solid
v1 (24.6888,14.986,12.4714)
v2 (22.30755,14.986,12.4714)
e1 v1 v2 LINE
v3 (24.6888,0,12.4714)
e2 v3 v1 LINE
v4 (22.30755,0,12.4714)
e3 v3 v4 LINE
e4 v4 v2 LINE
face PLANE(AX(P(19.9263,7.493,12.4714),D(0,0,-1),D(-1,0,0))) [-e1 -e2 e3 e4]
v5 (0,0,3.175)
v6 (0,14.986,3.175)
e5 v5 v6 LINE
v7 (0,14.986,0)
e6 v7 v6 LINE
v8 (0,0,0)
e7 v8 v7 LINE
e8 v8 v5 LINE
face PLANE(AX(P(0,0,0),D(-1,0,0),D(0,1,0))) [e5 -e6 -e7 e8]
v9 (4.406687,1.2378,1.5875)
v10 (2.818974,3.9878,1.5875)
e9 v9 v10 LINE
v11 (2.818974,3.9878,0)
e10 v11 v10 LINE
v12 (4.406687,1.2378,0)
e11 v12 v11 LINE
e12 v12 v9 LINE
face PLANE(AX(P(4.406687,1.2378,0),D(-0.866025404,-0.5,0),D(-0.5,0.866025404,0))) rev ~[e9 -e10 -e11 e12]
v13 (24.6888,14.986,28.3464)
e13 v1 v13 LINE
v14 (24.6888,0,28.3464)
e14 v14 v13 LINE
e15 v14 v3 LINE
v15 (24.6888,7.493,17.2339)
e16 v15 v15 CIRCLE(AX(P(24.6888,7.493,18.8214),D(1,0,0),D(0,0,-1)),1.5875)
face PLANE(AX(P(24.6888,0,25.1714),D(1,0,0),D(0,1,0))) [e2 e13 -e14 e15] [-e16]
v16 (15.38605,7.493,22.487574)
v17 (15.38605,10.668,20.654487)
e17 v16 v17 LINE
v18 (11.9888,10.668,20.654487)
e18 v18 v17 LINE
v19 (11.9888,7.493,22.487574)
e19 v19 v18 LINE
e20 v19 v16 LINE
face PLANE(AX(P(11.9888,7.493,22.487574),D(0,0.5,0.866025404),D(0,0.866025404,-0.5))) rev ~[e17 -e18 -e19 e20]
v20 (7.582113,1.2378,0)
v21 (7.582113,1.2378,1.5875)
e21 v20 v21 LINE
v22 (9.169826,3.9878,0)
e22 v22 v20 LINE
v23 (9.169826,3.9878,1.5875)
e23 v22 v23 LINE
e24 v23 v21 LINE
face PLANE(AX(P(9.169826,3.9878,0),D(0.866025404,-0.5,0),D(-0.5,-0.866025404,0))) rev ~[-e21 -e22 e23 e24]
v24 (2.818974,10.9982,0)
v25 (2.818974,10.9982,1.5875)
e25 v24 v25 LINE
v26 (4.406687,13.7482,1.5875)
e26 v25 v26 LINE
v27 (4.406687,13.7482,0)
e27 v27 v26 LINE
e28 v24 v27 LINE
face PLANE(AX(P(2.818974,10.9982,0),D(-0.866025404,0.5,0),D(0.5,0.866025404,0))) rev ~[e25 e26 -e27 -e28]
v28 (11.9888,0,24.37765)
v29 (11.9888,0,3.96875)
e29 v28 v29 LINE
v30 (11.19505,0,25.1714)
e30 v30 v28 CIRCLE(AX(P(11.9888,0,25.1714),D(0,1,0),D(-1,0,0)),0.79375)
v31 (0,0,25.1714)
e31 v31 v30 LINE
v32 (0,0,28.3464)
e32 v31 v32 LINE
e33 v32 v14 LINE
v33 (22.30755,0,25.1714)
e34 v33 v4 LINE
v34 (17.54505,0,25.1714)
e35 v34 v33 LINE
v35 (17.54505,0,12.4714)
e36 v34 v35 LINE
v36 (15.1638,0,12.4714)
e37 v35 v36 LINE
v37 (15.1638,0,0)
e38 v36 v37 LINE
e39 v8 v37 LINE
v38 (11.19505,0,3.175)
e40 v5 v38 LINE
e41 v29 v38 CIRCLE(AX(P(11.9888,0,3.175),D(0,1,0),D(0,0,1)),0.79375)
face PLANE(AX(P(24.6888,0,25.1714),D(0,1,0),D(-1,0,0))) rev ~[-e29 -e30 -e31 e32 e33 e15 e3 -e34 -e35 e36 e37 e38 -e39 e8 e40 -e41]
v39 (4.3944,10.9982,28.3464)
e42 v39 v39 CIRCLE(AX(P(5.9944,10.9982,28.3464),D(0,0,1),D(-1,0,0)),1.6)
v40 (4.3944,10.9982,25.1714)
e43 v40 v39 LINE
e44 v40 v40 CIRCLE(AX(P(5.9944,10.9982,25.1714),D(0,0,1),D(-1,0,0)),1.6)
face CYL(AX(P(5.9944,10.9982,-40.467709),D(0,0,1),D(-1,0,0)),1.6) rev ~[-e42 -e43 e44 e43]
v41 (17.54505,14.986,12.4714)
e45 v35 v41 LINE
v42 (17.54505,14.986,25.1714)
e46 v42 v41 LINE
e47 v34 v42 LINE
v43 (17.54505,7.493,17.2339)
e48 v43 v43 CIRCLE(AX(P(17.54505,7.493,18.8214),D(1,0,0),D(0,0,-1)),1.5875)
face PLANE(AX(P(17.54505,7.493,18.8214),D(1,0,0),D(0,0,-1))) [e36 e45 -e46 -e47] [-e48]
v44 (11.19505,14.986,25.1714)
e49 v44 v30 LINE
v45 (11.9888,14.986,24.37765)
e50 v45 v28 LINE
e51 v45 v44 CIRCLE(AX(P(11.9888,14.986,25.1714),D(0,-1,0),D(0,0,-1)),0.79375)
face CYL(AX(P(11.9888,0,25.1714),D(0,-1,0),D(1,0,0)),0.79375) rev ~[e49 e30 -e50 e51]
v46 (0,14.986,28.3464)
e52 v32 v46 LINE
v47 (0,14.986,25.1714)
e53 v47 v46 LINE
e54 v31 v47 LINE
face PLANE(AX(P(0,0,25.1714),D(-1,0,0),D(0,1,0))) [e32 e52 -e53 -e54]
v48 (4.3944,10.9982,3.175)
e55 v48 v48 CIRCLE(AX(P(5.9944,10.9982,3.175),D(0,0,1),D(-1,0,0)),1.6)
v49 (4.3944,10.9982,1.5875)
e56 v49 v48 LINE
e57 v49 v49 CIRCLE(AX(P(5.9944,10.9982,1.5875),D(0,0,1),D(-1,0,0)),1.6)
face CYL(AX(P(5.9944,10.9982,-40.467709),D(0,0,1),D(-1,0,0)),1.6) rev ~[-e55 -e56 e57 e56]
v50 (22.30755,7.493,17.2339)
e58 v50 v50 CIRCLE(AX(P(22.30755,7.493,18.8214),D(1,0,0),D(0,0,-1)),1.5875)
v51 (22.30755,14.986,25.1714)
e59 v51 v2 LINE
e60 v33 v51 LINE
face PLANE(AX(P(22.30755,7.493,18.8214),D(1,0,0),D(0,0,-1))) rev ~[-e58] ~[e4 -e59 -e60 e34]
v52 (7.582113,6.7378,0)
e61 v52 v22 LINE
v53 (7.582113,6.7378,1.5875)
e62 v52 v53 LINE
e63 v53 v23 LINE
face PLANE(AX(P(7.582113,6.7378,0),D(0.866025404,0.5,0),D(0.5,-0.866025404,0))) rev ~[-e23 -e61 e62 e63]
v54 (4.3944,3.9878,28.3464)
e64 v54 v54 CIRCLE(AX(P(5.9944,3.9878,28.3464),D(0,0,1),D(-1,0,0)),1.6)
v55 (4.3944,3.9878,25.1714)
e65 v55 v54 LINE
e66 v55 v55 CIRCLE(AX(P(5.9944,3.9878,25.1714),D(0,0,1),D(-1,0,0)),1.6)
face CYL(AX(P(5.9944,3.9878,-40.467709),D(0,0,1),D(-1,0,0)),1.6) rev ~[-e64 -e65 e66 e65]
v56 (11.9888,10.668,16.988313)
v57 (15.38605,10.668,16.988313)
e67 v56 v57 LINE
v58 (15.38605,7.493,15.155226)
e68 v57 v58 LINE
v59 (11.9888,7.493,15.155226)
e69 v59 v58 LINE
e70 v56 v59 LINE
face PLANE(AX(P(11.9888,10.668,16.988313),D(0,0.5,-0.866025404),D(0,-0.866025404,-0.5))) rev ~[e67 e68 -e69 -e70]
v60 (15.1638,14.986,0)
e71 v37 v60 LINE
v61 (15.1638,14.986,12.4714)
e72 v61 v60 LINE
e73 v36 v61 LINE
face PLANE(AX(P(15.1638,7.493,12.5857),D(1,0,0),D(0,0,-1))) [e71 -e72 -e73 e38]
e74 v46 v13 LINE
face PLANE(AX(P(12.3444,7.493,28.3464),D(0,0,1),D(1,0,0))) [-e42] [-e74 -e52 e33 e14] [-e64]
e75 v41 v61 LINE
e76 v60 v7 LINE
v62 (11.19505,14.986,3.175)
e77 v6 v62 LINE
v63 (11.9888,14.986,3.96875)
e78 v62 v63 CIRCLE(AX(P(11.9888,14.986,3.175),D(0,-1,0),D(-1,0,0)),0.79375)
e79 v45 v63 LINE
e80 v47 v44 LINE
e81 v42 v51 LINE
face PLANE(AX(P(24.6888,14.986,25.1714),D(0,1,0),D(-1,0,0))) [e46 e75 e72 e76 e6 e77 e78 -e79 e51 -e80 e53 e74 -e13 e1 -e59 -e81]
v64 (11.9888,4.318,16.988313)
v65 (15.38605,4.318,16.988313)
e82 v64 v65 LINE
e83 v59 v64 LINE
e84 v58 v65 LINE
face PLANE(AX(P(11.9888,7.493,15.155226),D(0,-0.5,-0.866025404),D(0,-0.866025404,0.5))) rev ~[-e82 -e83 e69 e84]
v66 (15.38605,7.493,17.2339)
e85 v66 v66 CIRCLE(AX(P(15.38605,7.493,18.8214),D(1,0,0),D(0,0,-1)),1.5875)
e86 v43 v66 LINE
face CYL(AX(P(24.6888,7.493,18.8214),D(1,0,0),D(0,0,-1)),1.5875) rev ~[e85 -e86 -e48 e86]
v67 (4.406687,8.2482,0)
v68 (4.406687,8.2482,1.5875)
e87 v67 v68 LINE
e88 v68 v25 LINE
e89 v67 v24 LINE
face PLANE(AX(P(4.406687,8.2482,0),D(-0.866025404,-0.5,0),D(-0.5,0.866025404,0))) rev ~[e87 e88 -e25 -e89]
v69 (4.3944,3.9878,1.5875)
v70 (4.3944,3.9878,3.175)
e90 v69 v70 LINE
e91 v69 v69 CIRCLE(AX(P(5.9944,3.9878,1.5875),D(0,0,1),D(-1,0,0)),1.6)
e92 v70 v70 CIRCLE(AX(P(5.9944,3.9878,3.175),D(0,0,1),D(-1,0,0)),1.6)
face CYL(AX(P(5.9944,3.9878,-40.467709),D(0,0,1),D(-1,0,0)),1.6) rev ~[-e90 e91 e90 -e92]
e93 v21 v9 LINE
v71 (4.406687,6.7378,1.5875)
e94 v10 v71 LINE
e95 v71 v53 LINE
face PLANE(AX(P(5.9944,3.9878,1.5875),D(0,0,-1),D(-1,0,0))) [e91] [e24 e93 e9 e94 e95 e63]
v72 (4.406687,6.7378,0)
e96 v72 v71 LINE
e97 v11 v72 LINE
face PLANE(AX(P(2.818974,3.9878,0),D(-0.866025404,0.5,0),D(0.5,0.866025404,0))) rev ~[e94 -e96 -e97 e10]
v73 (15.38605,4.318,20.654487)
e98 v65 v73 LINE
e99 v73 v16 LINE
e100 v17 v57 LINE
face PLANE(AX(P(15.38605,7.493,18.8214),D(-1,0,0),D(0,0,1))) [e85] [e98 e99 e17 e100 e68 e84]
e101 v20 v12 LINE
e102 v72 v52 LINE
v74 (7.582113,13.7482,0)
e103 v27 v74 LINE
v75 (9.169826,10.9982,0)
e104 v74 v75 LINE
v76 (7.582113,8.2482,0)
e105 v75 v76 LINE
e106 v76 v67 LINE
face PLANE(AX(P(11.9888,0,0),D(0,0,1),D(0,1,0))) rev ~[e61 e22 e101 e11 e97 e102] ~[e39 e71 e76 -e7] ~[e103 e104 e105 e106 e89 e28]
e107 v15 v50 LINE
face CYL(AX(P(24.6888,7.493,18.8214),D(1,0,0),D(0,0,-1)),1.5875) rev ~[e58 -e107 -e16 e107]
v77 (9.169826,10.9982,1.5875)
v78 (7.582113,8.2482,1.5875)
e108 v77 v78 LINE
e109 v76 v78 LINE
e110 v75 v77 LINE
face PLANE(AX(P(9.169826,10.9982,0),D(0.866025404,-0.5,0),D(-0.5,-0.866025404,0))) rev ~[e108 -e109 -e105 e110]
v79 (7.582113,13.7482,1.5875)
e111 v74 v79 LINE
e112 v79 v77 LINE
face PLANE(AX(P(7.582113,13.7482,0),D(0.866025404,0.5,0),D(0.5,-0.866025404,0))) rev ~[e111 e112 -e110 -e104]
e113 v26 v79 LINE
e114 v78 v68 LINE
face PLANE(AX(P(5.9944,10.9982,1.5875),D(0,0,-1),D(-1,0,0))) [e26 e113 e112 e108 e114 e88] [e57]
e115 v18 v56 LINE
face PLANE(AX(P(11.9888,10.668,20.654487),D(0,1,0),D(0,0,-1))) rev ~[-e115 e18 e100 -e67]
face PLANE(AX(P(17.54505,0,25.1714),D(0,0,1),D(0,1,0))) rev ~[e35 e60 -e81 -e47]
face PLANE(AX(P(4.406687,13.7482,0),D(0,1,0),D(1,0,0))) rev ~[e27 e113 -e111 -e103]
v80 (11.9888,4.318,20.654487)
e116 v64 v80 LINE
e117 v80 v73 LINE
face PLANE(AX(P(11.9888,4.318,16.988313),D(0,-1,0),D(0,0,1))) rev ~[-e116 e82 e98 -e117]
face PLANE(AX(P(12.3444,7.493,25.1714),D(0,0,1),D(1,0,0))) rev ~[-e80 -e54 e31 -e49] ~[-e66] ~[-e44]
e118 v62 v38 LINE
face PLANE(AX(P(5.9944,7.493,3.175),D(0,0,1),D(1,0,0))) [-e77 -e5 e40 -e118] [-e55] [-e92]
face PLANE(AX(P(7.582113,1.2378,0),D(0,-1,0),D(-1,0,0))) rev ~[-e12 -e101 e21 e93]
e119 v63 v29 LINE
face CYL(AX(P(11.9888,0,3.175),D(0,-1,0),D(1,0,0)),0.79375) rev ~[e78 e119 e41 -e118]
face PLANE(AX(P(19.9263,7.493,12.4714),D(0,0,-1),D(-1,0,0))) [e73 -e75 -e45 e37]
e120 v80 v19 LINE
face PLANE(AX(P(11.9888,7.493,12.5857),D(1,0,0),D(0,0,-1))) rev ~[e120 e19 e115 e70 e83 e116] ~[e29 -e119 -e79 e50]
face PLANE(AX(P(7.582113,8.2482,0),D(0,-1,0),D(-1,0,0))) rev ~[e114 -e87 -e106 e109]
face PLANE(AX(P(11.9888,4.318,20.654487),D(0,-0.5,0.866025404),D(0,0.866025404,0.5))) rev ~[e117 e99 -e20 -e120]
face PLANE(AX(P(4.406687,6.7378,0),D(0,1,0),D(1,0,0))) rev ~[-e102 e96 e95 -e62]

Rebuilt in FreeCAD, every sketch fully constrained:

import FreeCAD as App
import Part
import Sketcher

V = App.Vector
Q = App.Units.Quantity

doc = App.newDocument("Part")
body = doc.addObject("PartDesign::Body", "Body")

sketch1 = body.newObject("Sketcher::SketchObject", "Sketch")
sketch1.AttachmentSupport = (doc.getObject("XY_Plane"), [""])
sketch1.MapMode = "FlatFace"
sketch1.addGeometry([
    Part.LineSegment(V(0, 14.986, 0), V(0, 0, 0)),
    Part.LineSegment(V(0, 0, 0), V(11.9888, 0, 0)),
    Part.LineSegment(V(11.9888, 0, 0), V(11.9888, 14.986, 0)),
    Part.LineSegment(V(11.9888, 14.986, 0), V(0, 14.986, 0)),
], False)
sketch1.addConstraint([
    Sketcher.Constraint("Coincident", 0, 2, 1, 1),
    Sketcher.Constraint("Coincident", 1, 2, 2, 1),
    Sketcher.Constraint("Coincident", 2, 2, 3, 1),
    Sketcher.Constraint("Coincident", 3, 2, 0, 1),
    Sketcher.Constraint("Vertical", 0),
    Sketcher.Constraint("Horizontal", 1),
    Sketcher.Constraint("Vertical", 2),
    Sketcher.Constraint("Horizontal", 3),
    Sketcher.Constraint("Coincident", 0, 2, -1, 1),
    Sketcher.Constraint("DistanceY", 0, 2, 0, 1, Q("0.59 in")),
    Sketcher.Constraint("DistanceX", 1, 1, 1, 2, Q("0.472 in")),
])
pad1 = body.newObject("PartDesign::Pad", "Pad")
pad1.Profile = sketch1
pad1.Length = Q("0.125 in")

sketch2 = body.newObject("Sketcher::SketchObject", "Sketch001")
sketch2.AttachmentSupport = (doc.getObject("YZ_Plane"), [""])
sketch2.MapMode = "FlatFace"
sketch2.AttachmentOffset = App.Placement(V(0, 0, 0.472 * 25.4), App.Rotation())
sketch2.addGeometry([
    Part.LineSegment(V(14.986, 25.1714, 0), V(0, 25.1714, 0)),
    Part.LineSegment(V(0, 25.1714, 0), V(0, 0, 0)),
    Part.LineSegment(V(0, 0, 0), V(14.986, 0, 0)),
    Part.LineSegment(V(14.986, 0, 0), V(14.986, 25.1714, 0)),
], False)
sketch2.addConstraint([
    Sketcher.Constraint("Coincident", 0, 2, 1, 1),
    Sketcher.Constraint("Coincident", 1, 2, 2, 1),
    Sketcher.Constraint("Coincident", 2, 2, 3, 1),
    Sketcher.Constraint("Coincident", 3, 2, 0, 1),
    Sketcher.Constraint("Horizontal", 0),
    Sketcher.Constraint("Vertical", 1),
    Sketcher.Constraint("Horizontal", 2),
    Sketcher.Constraint("Vertical", 3),
    Sketcher.Constraint("Coincident", 1, 2, -1, 1),
    Sketcher.Constraint("DistanceX", 0, 2, 0, 1, Q("0.59 in")),
    Sketcher.Constraint("DistanceY", 1, 2, 1, 1, Q("0.991 in")),
])
pad2 = body.newObject("PartDesign::Pad", "Pad001")
pad2.Profile = sketch2
pad2.Length = Q("0.125 in")

sketch3 = body.newObject("Sketcher::SketchObject", "Sketch002")
sketch3.AttachmentSupport = (doc.getObject("XY_Plane"), [""])
sketch3.MapMode = "FlatFace"
sketch3.AttachmentOffset = App.Placement(V(0, 0, 0.991 * 25.4), App.Rotation())
sketch3.addGeometry([
    Part.LineSegment(V(0, 14.986, 0), V(0, 0, 0)),
    Part.LineSegment(V(0, 0, 0), V(24.6888, 0, 0)),
    Part.LineSegment(V(24.6888, 0, 0), V(24.6888, 14.986, 0)),
    Part.LineSegment(V(24.6888, 14.986, 0), V(0, 14.986, 0)),
], False)
sketch3.addConstraint([
    Sketcher.Constraint("Coincident", 0, 2, 1, 1),
    Sketcher.Constraint("Coincident", 1, 2, 2, 1),
    Sketcher.Constraint("Coincident", 2, 2, 3, 1),
    Sketcher.Constraint("Coincident", 3, 2, 0, 1),
    Sketcher.Constraint("Vertical", 0),
    Sketcher.Constraint("Horizontal", 1),
    Sketcher.Constraint("Vertical", 2),
    Sketcher.Constraint("Horizontal", 3),
    Sketcher.Constraint("Coincident", 0, 2, -1, 1),
    Sketcher.Constraint("DistanceY", 0, 2, 0, 1, Q("0.59 in")),
    Sketcher.Constraint("DistanceX", 1, 1, 1, 2, Q("0.972 in")),
])
pad3 = body.newObject("PartDesign::Pad", "Pad002")
pad3.Profile = sketch3
pad3.Length = Q("0.125 in")

sketch4 = body.newObject("Sketcher::SketchObject", "Sketch003")
sketch4.AttachmentSupport = (doc.getObject("XY_Plane"), [""])
sketch4.MapMode = "FlatFace"
sketch4.addGeometry([
    Part.Circle(V(5.9944, 10.9982, 0), V(0, 0, 1), 1.6),
    Part.Circle(V(5.9944, 3.9878, 0), V(0, 0, 1), 1.6),
], False)
sketch4.addConstraint([
    Sketcher.Constraint("Equal", 0, 1),
    Sketcher.Constraint("Vertical", 0, 3, 1, 3),
    Sketcher.Constraint("Diameter", 0, Q("3.2 mm")),
    Sketcher.Constraint("DistanceX", -1, 1, 0, 3, Q("0.236 in")),
    Sketcher.Constraint("DistanceY", -1, 1, 0, 3, Q("0.433 in")),
    Sketcher.Constraint("DistanceY", -1, 1, 1, 3, Q("0.157 in")),
])
doc.recompute()
hole = body.newObject("PartDesign::Hole", "Hole")
hole.Profile = sketch4
hole.ThreadType = "None"
hole.Diameter = 3.2
hole.DepthType = "ThroughAll"
hole.Reversed = True

sketch5 = body.newObject("Sketcher::SketchObject", "Sketch004")
sketch5.AttachmentSupport = (doc.getObject("XZ_Plane"), [""])
sketch5.MapMode = "FlatFace"
sketch5.addGeometry([
    Part.Circle(V(11.9888, 25.1714, 0), V(0, 0, 1), 0.79375),
    Part.Circle(V(11.9888, 3.175, 0), V(0, 0, 1), 0.79375),
], False)
sketch5.addConstraint([
    Sketcher.Constraint("Equal", 0, 1),
    Sketcher.Constraint("Vertical", 0, 3, 1, 3),
    Sketcher.Constraint("Diameter", 0, Q("0.0625 in")),
    Sketcher.Constraint("DistanceX", -1, 1, 0, 3, Q("0.472 in")),
    Sketcher.Constraint("DistanceY", -1, 1, 0, 3, Q("0.991 in")),
    Sketcher.Constraint("DistanceY", -1, 1, 1, 3, Q("0.125 in")),
])
pocket1 = body.newObject("PartDesign::Pocket", "Pocket")
pocket1.Profile = sketch5
pocket1.Type = "ThroughAll"

sketch6 = body.newObject("Sketcher::SketchObject", "Sketch005")
sketch6.AttachmentSupport = (doc.getObject("XY_Plane"), [""])
sketch6.MapMode = "FlatFace"
sketch6.addGeometry([
    Part.LineSegment(V(4.406687, 6.7378, 0), V(7.582113, 6.7378, 0)),
    Part.LineSegment(V(7.582113, 6.7378, 0), V(9.169826, 3.9878, 0)),
    Part.LineSegment(V(9.169826, 3.9878, 0), V(7.582113, 1.2378, 0)),
    Part.LineSegment(V(7.582113, 1.2378, 0), V(4.406687, 1.2378, 0)),
    Part.LineSegment(V(4.406687, 1.2378, 0), V(2.818974, 3.9878, 0)),
    Part.LineSegment(V(2.818974, 3.9878, 0), V(4.406687, 6.7378, 0)),
    Part.LineSegment(V(4.406687, 13.7482, 0), V(7.582113, 13.7482, 0)),
    Part.LineSegment(V(7.582113, 13.7482, 0), V(9.169826, 10.9982, 0)),
    Part.LineSegment(V(9.169826, 10.9982, 0), V(7.582113, 8.2482, 0)),
    Part.LineSegment(V(7.582113, 8.2482, 0), V(4.406687, 8.2482, 0)),
    Part.LineSegment(V(4.406687, 8.2482, 0), V(2.818974, 10.9982, 0)),
    Part.LineSegment(V(2.818974, 10.9982, 0), V(4.406687, 13.7482, 0)),
], False)
sketch6.addConstraint([
    Sketcher.Constraint("Coincident", 0, 2, 1, 1),
    Sketcher.Constraint("Coincident", 1, 2, 2, 1),
    Sketcher.Constraint("Coincident", 2, 2, 3, 1),
    Sketcher.Constraint("Coincident", 3, 2, 4, 1),
    Sketcher.Constraint("Coincident", 4, 2, 5, 1),
    Sketcher.Constraint("Coincident", 5, 2, 0, 1),
    Sketcher.Constraint("Coincident", 6, 2, 7, 1),
    Sketcher.Constraint("Coincident", 7, 2, 8, 1),
    Sketcher.Constraint("Coincident", 8, 2, 9, 1),
    Sketcher.Constraint("Coincident", 9, 2, 10, 1),
    Sketcher.Constraint("Coincident", 10, 2, 11, 1),
    Sketcher.Constraint("Coincident", 11, 2, 6, 1),
    Sketcher.Constraint("Horizontal", 0),
    Sketcher.Constraint("Horizontal", 3),
    Sketcher.Constraint("Horizontal", 6),
    Sketcher.Constraint("Horizontal", 9),
    Sketcher.Constraint("Parallel", 1, 4),
    Sketcher.Constraint("Parallel", 2, 5),
    Sketcher.Constraint("Parallel", 4, 7),
    Sketcher.Constraint("Parallel", 5, 8),
    Sketcher.Constraint("Parallel", 7, 10),
    Sketcher.Constraint("Parallel", 8, 11),
    Sketcher.Constraint("Horizontal", 1, 2, 4, 2),
    Sketcher.Constraint("Horizontal", 7, 2, 10, 2),
    Sketcher.Constraint("Vertical", 0, 2, 2, 2),
    Sketcher.Constraint("Vertical", 3, 2, 5, 2),
    Sketcher.Constraint("Vertical", 2, 2, 6, 2),
    Sketcher.Constraint("Vertical", 1, 2, 7, 2),
    Sketcher.Constraint("Vertical", 6, 2, 8, 2),
    Sketcher.Constraint("Vertical", 5, 2, 9, 2),
    Sketcher.Constraint("Angle", 1, Q("-60 deg")),
    Sketcher.Constraint("DistanceY", -1, 1, 1, 2, Q("0.157 in")),
    Sketcher.Constraint("DistanceY", -1, 1, 7, 2, Q("0.433 in")),
    Sketcher.Constraint("DistanceY", -1, 1, 0, 2, Q("6.7378 mm")),
    Sketcher.Constraint("DistanceX", 0, 1, 0, 2, Q("3.175426 mm")),
    Sketcher.Constraint("DistanceX", -1, 1, 0, 2, Q("7.582113 mm")),
])
pocket2 = body.newObject("PartDesign::Pocket", "Pocket001")
pocket2.Profile = sketch6
pocket2.Length = Q("0.0625 in")
pocket2.Reversed = True

sketch7 = body.newObject("Sketcher::SketchObject", "Sketch006")
sketch7.AttachmentSupport = (doc.getObject("XY_Plane"), [""])
sketch7.MapMode = "FlatFace"
sketch7.AttachmentOffset = App.Placement(V(0, 0, 0.991 * 25.4), App.Rotation())
sketch7.addGeometry([
    Part.LineSegment(V(24.6888, 14.986, 0), V(24.6888, 0, 0)),
    Part.LineSegment(V(24.6888, 0, 0), V(15.1638, 0, 0)),
    Part.LineSegment(V(15.1638, 0, 0), V(15.1638, 14.986, 0)),
    Part.LineSegment(V(15.1638, 14.986, 0), V(24.6888, 14.986, 0)),
], False)
sketch7.addConstraint([
    Sketcher.Constraint("Coincident", 0, 2, 1, 1),
    Sketcher.Constraint("Coincident", 1, 2, 2, 1),
    Sketcher.Constraint("Coincident", 2, 2, 3, 1),
    Sketcher.Constraint("Coincident", 3, 2, 0, 1),
    Sketcher.Constraint("Vertical", 0),
    Sketcher.Constraint("Horizontal", 1),
    Sketcher.Constraint("Vertical", 2),
    Sketcher.Constraint("Horizontal", 3),
    Sketcher.Constraint("PointOnObject", 0, 2, -1),
    Sketcher.Constraint("DistanceY", 0, 2, 0, 1, Q("0.59 in")),
    Sketcher.Constraint("DistanceX", 1, 2, 1, 1, Q("0.375 in")),
    Sketcher.Constraint("DistanceX", -1, 1, 0, 2, Q("0.972 in")),
])
pad4 = body.newObject("PartDesign::Pad", "Pad003")
pad4.Profile = sketch7
pad4.Length = Q("0.5 in")
pad4.Reversed = True

sketch8 = body.newObject("Sketcher::SketchObject", "Sketch007")
sketch8.AttachmentSupport = (doc.getObject("YZ_Plane"), [""])
sketch8.MapMode = "FlatFace"
sketch8.AttachmentOffset = App.Placement(V(0, 0, 0.7845 * 25.4), App.Rotation())
sketch8.addGeometry([
    Part.LineSegment(V(14.986, 25.1714, 0), V(0, 25.1714, 0)),
    Part.LineSegment(V(0, 25.1714, 0), V(0, 12.4714, 0)),
    Part.LineSegment(V(0, 12.4714, 0), V(14.986, 12.4714, 0)),
    Part.LineSegment(V(14.986, 12.4714, 0), V(14.986, 25.1714, 0)),
], False)
sketch8.addConstraint([
    Sketcher.Constraint("Coincident", 0, 2, 1, 1),
    Sketcher.Constraint("Coincident", 1, 2, 2, 1),
    Sketcher.Constraint("Coincident", 2, 2, 3, 1),
    Sketcher.Constraint("Coincident", 3, 2, 0, 1),
    Sketcher.Constraint("Horizontal", 0),
    Sketcher.Constraint("Vertical", 1),
    Sketcher.Constraint("Horizontal", 2),
    Sketcher.Constraint("Vertical", 3),
    Sketcher.Constraint("PointOnObject", 0, 2, -2),
    Sketcher.Constraint("DistanceY", 1, 2, 1, 1, Q("0.5 in")),
    Sketcher.Constraint("DistanceX", 0, 2, 0, 1, Q("0.59 in")),
    Sketcher.Constraint("DistanceY", -1, 1, 0, 2, Q("0.991 in")),
])
pocket3 = body.newObject("PartDesign::Pocket", "Pocket002")
pocket3.Profile = sketch8
pocket3.Type = "TwoLengths"
pocket3.Length = Q("0.09375 in")
pocket3.Length2 = Q("0.09375 in")
pocket3.Reversed = True

sketch9 = body.newObject("Sketcher::SketchObject", "Sketch008")
sketch9.AttachmentSupport = (doc.getObject("YZ_Plane"), [""])
sketch9.MapMode = "FlatFace"
sketch9.AttachmentOffset = App.Placement(V(0, 0, 0.972 * 25.4), App.Rotation())
sketch9.addGeometry(Part.Circle(V(7.493, 18.8214, 0), V(0, 0, 1), 1.5875), False)
sketch9.addConstraint([
    Sketcher.Constraint("Diameter", 0, Q("0.125 in")),
    Sketcher.Constraint("DistanceX", -1, 1, 0, 3, Q("0.295 in")),
    Sketcher.Constraint("DistanceY", -1, 1, 0, 3, Q("0.741 in")),
])
pocket4 = body.newObject("PartDesign::Pocket", "Pocket003")
pocket4.Profile = sketch9
pocket4.Length = 16.60525

sketch10 = body.newObject("Sketcher::SketchObject", "Sketch009")
sketch10.AttachmentSupport = (doc.getObject("YZ_Plane"), [""])
sketch10.MapMode = "FlatFace"
sketch10.AttachmentOffset = App.Placement(V(0, 0, 0.472 * 25.4), App.Rotation())
sketch10.addGeometry([
    Part.LineSegment(V(7.493, 22.487574, 0), V(10.668, 20.654487, 0)),
    Part.LineSegment(V(10.668, 20.654487, 0), V(10.668, 16.988313, 0)),
    Part.LineSegment(V(10.668, 16.988313, 0), V(7.493, 15.155226, 0)),
    Part.LineSegment(V(7.493, 15.155226, 0), V(4.318, 16.988313, 0)),
    Part.LineSegment(V(4.318, 16.988313, 0), V(4.318, 20.654487, 0)),
    Part.LineSegment(V(4.318, 20.654487, 0), V(7.493, 22.487574, 0)),
], False)
sketch10.addConstraint([
    Sketcher.Constraint("Coincident", 0, 2, 1, 1),
    Sketcher.Constraint("Coincident", 1, 2, 2, 1),
    Sketcher.Constraint("Coincident", 2, 2, 3, 1),
    Sketcher.Constraint("Coincident", 3, 2, 4, 1),
    Sketcher.Constraint("Coincident", 4, 2, 5, 1),
    Sketcher.Constraint("Coincident", 5, 2, 0, 1),
    Sketcher.Constraint("Vertical", 1),
    Sketcher.Constraint("Vertical", 4),
    Sketcher.Constraint("Parallel", 0, 3),
    Sketcher.Constraint("Parallel", 2, 5),
    Sketcher.Constraint("Horizontal", 1, 2, 3, 2),
    Sketcher.Constraint("Horizontal", 0, 2, 4, 2),
    Sketcher.Constraint("Vertical", 2, 2, 5, 2),
    Sketcher.Constraint("Angle", 0, Q("-30 deg")),
    Sketcher.Constraint("DistanceX", -1, 1, 0, 2, Q("0.42 in")),
    Sketcher.Constraint("DistanceX", -1, 1, 3, 2, Q("0.17 in")),
    Sketcher.Constraint("DistanceY", 1, 2, 1, 1, Q("3.666174 mm")),
    Sketcher.Constraint("DistanceY", -1, 1, 0, 2, Q("20.654487 mm")),
])
pocket5 = body.newObject("PartDesign::Pocket", "Pocket004")
pocket5.Profile = sketch10
pocket5.Length = 3.39725
pocket5.Reversed = True

doc.recompute()
